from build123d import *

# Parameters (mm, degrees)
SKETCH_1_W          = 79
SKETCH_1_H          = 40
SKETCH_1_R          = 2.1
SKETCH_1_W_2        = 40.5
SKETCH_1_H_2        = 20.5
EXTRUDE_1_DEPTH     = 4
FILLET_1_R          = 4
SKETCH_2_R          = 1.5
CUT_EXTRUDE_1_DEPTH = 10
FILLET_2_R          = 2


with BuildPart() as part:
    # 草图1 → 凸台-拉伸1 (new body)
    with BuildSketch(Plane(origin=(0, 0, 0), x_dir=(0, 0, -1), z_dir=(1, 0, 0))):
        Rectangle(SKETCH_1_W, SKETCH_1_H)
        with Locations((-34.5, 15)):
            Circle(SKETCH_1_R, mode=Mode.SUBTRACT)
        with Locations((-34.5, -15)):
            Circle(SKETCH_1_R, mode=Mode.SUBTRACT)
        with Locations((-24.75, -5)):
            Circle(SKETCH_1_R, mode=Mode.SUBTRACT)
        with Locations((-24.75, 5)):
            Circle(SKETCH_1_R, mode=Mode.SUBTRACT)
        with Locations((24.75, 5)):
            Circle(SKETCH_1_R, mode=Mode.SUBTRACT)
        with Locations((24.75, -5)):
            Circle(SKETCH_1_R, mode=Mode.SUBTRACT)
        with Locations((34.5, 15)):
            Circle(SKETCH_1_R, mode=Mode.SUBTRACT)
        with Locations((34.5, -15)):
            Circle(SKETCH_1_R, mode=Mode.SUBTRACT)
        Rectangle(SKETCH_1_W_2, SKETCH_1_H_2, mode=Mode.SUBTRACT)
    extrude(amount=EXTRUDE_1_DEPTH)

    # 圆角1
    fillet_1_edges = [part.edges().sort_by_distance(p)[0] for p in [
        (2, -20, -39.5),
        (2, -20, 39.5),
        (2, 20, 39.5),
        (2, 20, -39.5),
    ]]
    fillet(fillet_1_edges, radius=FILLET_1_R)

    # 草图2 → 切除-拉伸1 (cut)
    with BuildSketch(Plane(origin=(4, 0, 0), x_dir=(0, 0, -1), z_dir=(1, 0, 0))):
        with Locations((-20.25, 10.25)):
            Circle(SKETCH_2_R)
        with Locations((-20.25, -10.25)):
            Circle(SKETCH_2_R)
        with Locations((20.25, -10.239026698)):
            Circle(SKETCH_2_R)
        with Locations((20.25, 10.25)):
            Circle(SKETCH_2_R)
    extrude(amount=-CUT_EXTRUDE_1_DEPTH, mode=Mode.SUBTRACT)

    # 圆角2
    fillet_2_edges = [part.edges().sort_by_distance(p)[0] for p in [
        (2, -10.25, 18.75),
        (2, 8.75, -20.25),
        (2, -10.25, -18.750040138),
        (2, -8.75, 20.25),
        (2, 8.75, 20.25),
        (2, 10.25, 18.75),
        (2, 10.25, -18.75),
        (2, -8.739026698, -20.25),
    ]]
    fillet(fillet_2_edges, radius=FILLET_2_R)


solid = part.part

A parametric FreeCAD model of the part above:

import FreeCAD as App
import Part
import Sketcher

V = App.Vector
Q = App.Units.Quantity


def edges_at(feature, points):
    """Names of the edges that pass closest to the given points."""
    edges = feature.Shape.Edges
    near = lambda p: min(range(len(edges)), key=lambda i: edges[i].distToShape(Part.Vertex(*p))[0])
    return sorted({f"Edge{near(p) + 1}" for p in points})

doc = App.newDocument("Part")
body = doc.addObject("PartDesign::Body", "Body")

sketch1 = body.newObject("Sketcher::SketchObject", "Sketch")
sketch1.AttachmentSupport = (doc.getObject("YZ_Plane"), [""])
sketch1.MapMode = "FlatFace"
sketch1.addGeometry([
    Part.LineSegment(V(20, 39.5, 0), V(-20, 39.5, 0)),
    Part.LineSegment(V(-20, 39.5, 0), V(-20, -39.5, 0)),
    Part.LineSegment(V(-20, -39.5, 0), V(20, -39.5, 0)),
    Part.LineSegment(V(20, -39.5, 0), V(20, 39.5, 0)),
    Part.Circle(V(-15, 34.5, 0), V(0, 0, 1), 2.1),
    Part.Circle(V(-5, 24.8, 0), V(0, 0, 1), 2.1),
    Part.Circle(V(-15, -34.5, 0), V(0, 0, 1), 2.1),
    Part.Circle(V(-5, -24.8, 0), V(0, 0, 1), 2.1),
    Part.Circle(V(5, 24.8, 0), V(0, 0, 1), 2.1),
    Part.Circle(V(15, 34.5, 0), V(0, 0, 1), 2.1),
    Part.LineSegment(V(-10.2, -20.2, 0), V(-10.2, 20.2, 0)),
    Part.LineSegment(V(-10.2, 20.2, 0), V(10.2, 20.2, 0)),
    Part.LineSegment(V(10.2, 20.2, 0), V(10.2, -20.2, 0)),
    Part.LineSegment(V(10.2, -20.2, 0), V(-10.2, -20.2, 0)),
    Part.Circle(V(5, -24.8, 0), V(0, 0, 1), 2.1),
    Part.Circle(V(15, -34.5, 0), V(0, 0, 1), 2.1),
], False)
sketch1.addConstraint([
    Sketcher.Constraint("Coincident", 0, 2, 1, 1),
    Sketcher.Constraint("Coincident", 1, 2, 2, 1),
    Sketcher.Constraint("Coincident", 2, 2, 3, 1),
    Sketcher.Constraint("Coincident", 3, 2, 0, 1),
    Sketcher.Constraint("Coincident", 10, 2, 11, 1),
    Sketcher.Constraint("Coincident", 11, 2, 12, 1),
    Sketcher.Constraint("Coincident", 12, 2, 13, 1),
    Sketcher.Constraint("Coincident", 13, 2, 10, 1),
    Sketcher.Constraint("Horizontal", 0),
    Sketcher.Constraint("Vertical", 1),
    Sketcher.Constraint("Horizontal", 2),
    Sketcher.Constraint("Vertical", 3),
    Sketcher.Constraint("Vertical", 10),
    Sketcher.Constraint("Horizontal", 11),
    Sketcher.Constraint("Vertical", 12),
    Sketcher.Constraint("Horizontal", 13),
    Sketcher.Constraint("Equal", 4, 5),
    Sketcher.Constraint("Equal", 5, 6),
    Sketcher.Constraint("Equal", 6, 7),
    Sketcher.Constraint("Equal", 7, 8),
    Sketcher.Constraint("Equal", 8, 9),
    Sketcher.Constraint("Equal", 9, 14),
    Sketcher.Constraint("Equal", 14, 15),
    Sketcher.Constraint("Symmetric", 7, 3, 8, 3, -1, 1),
    Sketcher.Constraint("Symmetric", 6, 3, 9, 3, -1, 1),
    Sketcher.Constraint("Symmetric", 5, 3, 14, 3, -1, 1),
    Sketcher.Constraint("Symmetric", 4, 3, 15, 3, -1, 1),
    Sketcher.Constraint("Symmetric", 0, 2, 2, 2, -1, 1),
    Sketcher.Constraint("Symmetric", 10, 2, 12, 2, -1, 1),
    Sketcher.Constraint("Symmetric", 5, 3, 8, 3, -2),
    Sketcher.Constraint("Symmetric", 4, 3, 9, 3, -2),
    Sketcher.Constraint("Diameter", 4, Q("4.2 mm")),
    Sketcher.Constraint("DistanceX", 0, 2, 0, 1, Q("40 mm")),
    Sketcher.Constraint("DistanceY", 1, 2, 1, 1, Q("79 mm")),
    Sketcher.Constraint("DistanceX", 11, 1, 11, 2, Q("20.5 mm")),
    Sketcher.Constraint("DistanceY", 10, 1, 10, 2, Q("40.5 mm")),
    Sketcher.Constraint("DistanceX", 4, 3, -1, 1, Q("15 mm")),
    Sketcher.Constraint("DistanceX", 5, 3, -1, 1, Q("5 mm")),
    Sketcher.Constraint("DistanceY", 6, 3, 4, 3, Q("69 mm")),
    Sketcher.Constraint("DistanceY", 7, 3, 5, 3, Q("49.5 mm")),
])
pad1 = body.newObject("PartDesign::Pad", "Pad")
pad1.Profile = sketch1
pad1.Length = 4
doc.recompute()

fillet = body.newObject("PartDesign::Fillet", "Fillet")
fillet.Base = (pad1, edges_at(pad1, [
    (2, -20, -39.5),
    (2, -20, 39.5),
    (2, 20, 39.5),
    (2, 20, -39.5),
]))
fillet.Radius = 4

sketch2 = body.newObject("Sketcher::SketchObject", "Sketch001")
sketch2.AttachmentSupport = (doc.getObject("YZ_Plane"), [""])
sketch2.MapMode = "FlatFace"
sketch2.AttachmentOffset = App.Placement(V(0, 0, 4), App.Rotation())
sketch2.addGeometry([
    Part.Circle(V(10.2, 20.2, 0), V(0, 0, 1), 1.5),
    Part.Circle(V(-10.2, 20.2, 0), V(0, 0, 1), 1.5),
    Part.Circle(V(-10.2, -20.2, 0), V(0, 0, 1), 1.5),
    Part.Circle(V(10.2, -20.2, 0), V(0, 0, 1), 1.5),
], False)
sketch2.addConstraint([
    Sketcher.Constraint("Equal", 0, 1),
    Sketcher.Constraint("Equal", 1, 2),
    Sketcher.Constraint("Equal", 2, 3),
    Sketcher.Constraint("Symmetric", 1, 3, 3, 3, -1, 1),
    Sketcher.Constraint("Symmetric", 0, 3, 1, 3, -2),
    Sketcher.Constraint("Horizontal", 2, 3, 3, 3),
    Sketcher.Constraint("Diameter", 0, Q("3 mm")),
    Sketcher.Constraint("DistanceX", 1, 3, 0, 3, Q("20.5 mm")),
    Sketcher.Constraint("DistanceY", 2, 3, 1, 3, Q("40.5 mm")),
    Sketcher.Constraint("DistanceX", 2, 3, -1, 1, Q("10.239027 mm")),
])
pocket1 = body.newObject("PartDesign::Pocket", "Pocket")
pocket1.Profile = sketch2
pocket1.Length = 10
doc.recompute()

fillet2 = body.newObject("PartDesign::Fillet", "Fillet001")
fillet2.Base = (pocket1, edges_at(pocket1, [
    (2, -10.25, 18.75),
    (2, 8.75, -20.25),
    (2, -10.25, -18.75),
    (2, -8.75, 20.25),
    (2, 8.75, 20.25),
    (2, 10.25, 18.75),
    (2, 10.25, -18.75),
    (2, -8.739, -20.25),
]))
fillet2.Radius = 2

doc.recompute()
